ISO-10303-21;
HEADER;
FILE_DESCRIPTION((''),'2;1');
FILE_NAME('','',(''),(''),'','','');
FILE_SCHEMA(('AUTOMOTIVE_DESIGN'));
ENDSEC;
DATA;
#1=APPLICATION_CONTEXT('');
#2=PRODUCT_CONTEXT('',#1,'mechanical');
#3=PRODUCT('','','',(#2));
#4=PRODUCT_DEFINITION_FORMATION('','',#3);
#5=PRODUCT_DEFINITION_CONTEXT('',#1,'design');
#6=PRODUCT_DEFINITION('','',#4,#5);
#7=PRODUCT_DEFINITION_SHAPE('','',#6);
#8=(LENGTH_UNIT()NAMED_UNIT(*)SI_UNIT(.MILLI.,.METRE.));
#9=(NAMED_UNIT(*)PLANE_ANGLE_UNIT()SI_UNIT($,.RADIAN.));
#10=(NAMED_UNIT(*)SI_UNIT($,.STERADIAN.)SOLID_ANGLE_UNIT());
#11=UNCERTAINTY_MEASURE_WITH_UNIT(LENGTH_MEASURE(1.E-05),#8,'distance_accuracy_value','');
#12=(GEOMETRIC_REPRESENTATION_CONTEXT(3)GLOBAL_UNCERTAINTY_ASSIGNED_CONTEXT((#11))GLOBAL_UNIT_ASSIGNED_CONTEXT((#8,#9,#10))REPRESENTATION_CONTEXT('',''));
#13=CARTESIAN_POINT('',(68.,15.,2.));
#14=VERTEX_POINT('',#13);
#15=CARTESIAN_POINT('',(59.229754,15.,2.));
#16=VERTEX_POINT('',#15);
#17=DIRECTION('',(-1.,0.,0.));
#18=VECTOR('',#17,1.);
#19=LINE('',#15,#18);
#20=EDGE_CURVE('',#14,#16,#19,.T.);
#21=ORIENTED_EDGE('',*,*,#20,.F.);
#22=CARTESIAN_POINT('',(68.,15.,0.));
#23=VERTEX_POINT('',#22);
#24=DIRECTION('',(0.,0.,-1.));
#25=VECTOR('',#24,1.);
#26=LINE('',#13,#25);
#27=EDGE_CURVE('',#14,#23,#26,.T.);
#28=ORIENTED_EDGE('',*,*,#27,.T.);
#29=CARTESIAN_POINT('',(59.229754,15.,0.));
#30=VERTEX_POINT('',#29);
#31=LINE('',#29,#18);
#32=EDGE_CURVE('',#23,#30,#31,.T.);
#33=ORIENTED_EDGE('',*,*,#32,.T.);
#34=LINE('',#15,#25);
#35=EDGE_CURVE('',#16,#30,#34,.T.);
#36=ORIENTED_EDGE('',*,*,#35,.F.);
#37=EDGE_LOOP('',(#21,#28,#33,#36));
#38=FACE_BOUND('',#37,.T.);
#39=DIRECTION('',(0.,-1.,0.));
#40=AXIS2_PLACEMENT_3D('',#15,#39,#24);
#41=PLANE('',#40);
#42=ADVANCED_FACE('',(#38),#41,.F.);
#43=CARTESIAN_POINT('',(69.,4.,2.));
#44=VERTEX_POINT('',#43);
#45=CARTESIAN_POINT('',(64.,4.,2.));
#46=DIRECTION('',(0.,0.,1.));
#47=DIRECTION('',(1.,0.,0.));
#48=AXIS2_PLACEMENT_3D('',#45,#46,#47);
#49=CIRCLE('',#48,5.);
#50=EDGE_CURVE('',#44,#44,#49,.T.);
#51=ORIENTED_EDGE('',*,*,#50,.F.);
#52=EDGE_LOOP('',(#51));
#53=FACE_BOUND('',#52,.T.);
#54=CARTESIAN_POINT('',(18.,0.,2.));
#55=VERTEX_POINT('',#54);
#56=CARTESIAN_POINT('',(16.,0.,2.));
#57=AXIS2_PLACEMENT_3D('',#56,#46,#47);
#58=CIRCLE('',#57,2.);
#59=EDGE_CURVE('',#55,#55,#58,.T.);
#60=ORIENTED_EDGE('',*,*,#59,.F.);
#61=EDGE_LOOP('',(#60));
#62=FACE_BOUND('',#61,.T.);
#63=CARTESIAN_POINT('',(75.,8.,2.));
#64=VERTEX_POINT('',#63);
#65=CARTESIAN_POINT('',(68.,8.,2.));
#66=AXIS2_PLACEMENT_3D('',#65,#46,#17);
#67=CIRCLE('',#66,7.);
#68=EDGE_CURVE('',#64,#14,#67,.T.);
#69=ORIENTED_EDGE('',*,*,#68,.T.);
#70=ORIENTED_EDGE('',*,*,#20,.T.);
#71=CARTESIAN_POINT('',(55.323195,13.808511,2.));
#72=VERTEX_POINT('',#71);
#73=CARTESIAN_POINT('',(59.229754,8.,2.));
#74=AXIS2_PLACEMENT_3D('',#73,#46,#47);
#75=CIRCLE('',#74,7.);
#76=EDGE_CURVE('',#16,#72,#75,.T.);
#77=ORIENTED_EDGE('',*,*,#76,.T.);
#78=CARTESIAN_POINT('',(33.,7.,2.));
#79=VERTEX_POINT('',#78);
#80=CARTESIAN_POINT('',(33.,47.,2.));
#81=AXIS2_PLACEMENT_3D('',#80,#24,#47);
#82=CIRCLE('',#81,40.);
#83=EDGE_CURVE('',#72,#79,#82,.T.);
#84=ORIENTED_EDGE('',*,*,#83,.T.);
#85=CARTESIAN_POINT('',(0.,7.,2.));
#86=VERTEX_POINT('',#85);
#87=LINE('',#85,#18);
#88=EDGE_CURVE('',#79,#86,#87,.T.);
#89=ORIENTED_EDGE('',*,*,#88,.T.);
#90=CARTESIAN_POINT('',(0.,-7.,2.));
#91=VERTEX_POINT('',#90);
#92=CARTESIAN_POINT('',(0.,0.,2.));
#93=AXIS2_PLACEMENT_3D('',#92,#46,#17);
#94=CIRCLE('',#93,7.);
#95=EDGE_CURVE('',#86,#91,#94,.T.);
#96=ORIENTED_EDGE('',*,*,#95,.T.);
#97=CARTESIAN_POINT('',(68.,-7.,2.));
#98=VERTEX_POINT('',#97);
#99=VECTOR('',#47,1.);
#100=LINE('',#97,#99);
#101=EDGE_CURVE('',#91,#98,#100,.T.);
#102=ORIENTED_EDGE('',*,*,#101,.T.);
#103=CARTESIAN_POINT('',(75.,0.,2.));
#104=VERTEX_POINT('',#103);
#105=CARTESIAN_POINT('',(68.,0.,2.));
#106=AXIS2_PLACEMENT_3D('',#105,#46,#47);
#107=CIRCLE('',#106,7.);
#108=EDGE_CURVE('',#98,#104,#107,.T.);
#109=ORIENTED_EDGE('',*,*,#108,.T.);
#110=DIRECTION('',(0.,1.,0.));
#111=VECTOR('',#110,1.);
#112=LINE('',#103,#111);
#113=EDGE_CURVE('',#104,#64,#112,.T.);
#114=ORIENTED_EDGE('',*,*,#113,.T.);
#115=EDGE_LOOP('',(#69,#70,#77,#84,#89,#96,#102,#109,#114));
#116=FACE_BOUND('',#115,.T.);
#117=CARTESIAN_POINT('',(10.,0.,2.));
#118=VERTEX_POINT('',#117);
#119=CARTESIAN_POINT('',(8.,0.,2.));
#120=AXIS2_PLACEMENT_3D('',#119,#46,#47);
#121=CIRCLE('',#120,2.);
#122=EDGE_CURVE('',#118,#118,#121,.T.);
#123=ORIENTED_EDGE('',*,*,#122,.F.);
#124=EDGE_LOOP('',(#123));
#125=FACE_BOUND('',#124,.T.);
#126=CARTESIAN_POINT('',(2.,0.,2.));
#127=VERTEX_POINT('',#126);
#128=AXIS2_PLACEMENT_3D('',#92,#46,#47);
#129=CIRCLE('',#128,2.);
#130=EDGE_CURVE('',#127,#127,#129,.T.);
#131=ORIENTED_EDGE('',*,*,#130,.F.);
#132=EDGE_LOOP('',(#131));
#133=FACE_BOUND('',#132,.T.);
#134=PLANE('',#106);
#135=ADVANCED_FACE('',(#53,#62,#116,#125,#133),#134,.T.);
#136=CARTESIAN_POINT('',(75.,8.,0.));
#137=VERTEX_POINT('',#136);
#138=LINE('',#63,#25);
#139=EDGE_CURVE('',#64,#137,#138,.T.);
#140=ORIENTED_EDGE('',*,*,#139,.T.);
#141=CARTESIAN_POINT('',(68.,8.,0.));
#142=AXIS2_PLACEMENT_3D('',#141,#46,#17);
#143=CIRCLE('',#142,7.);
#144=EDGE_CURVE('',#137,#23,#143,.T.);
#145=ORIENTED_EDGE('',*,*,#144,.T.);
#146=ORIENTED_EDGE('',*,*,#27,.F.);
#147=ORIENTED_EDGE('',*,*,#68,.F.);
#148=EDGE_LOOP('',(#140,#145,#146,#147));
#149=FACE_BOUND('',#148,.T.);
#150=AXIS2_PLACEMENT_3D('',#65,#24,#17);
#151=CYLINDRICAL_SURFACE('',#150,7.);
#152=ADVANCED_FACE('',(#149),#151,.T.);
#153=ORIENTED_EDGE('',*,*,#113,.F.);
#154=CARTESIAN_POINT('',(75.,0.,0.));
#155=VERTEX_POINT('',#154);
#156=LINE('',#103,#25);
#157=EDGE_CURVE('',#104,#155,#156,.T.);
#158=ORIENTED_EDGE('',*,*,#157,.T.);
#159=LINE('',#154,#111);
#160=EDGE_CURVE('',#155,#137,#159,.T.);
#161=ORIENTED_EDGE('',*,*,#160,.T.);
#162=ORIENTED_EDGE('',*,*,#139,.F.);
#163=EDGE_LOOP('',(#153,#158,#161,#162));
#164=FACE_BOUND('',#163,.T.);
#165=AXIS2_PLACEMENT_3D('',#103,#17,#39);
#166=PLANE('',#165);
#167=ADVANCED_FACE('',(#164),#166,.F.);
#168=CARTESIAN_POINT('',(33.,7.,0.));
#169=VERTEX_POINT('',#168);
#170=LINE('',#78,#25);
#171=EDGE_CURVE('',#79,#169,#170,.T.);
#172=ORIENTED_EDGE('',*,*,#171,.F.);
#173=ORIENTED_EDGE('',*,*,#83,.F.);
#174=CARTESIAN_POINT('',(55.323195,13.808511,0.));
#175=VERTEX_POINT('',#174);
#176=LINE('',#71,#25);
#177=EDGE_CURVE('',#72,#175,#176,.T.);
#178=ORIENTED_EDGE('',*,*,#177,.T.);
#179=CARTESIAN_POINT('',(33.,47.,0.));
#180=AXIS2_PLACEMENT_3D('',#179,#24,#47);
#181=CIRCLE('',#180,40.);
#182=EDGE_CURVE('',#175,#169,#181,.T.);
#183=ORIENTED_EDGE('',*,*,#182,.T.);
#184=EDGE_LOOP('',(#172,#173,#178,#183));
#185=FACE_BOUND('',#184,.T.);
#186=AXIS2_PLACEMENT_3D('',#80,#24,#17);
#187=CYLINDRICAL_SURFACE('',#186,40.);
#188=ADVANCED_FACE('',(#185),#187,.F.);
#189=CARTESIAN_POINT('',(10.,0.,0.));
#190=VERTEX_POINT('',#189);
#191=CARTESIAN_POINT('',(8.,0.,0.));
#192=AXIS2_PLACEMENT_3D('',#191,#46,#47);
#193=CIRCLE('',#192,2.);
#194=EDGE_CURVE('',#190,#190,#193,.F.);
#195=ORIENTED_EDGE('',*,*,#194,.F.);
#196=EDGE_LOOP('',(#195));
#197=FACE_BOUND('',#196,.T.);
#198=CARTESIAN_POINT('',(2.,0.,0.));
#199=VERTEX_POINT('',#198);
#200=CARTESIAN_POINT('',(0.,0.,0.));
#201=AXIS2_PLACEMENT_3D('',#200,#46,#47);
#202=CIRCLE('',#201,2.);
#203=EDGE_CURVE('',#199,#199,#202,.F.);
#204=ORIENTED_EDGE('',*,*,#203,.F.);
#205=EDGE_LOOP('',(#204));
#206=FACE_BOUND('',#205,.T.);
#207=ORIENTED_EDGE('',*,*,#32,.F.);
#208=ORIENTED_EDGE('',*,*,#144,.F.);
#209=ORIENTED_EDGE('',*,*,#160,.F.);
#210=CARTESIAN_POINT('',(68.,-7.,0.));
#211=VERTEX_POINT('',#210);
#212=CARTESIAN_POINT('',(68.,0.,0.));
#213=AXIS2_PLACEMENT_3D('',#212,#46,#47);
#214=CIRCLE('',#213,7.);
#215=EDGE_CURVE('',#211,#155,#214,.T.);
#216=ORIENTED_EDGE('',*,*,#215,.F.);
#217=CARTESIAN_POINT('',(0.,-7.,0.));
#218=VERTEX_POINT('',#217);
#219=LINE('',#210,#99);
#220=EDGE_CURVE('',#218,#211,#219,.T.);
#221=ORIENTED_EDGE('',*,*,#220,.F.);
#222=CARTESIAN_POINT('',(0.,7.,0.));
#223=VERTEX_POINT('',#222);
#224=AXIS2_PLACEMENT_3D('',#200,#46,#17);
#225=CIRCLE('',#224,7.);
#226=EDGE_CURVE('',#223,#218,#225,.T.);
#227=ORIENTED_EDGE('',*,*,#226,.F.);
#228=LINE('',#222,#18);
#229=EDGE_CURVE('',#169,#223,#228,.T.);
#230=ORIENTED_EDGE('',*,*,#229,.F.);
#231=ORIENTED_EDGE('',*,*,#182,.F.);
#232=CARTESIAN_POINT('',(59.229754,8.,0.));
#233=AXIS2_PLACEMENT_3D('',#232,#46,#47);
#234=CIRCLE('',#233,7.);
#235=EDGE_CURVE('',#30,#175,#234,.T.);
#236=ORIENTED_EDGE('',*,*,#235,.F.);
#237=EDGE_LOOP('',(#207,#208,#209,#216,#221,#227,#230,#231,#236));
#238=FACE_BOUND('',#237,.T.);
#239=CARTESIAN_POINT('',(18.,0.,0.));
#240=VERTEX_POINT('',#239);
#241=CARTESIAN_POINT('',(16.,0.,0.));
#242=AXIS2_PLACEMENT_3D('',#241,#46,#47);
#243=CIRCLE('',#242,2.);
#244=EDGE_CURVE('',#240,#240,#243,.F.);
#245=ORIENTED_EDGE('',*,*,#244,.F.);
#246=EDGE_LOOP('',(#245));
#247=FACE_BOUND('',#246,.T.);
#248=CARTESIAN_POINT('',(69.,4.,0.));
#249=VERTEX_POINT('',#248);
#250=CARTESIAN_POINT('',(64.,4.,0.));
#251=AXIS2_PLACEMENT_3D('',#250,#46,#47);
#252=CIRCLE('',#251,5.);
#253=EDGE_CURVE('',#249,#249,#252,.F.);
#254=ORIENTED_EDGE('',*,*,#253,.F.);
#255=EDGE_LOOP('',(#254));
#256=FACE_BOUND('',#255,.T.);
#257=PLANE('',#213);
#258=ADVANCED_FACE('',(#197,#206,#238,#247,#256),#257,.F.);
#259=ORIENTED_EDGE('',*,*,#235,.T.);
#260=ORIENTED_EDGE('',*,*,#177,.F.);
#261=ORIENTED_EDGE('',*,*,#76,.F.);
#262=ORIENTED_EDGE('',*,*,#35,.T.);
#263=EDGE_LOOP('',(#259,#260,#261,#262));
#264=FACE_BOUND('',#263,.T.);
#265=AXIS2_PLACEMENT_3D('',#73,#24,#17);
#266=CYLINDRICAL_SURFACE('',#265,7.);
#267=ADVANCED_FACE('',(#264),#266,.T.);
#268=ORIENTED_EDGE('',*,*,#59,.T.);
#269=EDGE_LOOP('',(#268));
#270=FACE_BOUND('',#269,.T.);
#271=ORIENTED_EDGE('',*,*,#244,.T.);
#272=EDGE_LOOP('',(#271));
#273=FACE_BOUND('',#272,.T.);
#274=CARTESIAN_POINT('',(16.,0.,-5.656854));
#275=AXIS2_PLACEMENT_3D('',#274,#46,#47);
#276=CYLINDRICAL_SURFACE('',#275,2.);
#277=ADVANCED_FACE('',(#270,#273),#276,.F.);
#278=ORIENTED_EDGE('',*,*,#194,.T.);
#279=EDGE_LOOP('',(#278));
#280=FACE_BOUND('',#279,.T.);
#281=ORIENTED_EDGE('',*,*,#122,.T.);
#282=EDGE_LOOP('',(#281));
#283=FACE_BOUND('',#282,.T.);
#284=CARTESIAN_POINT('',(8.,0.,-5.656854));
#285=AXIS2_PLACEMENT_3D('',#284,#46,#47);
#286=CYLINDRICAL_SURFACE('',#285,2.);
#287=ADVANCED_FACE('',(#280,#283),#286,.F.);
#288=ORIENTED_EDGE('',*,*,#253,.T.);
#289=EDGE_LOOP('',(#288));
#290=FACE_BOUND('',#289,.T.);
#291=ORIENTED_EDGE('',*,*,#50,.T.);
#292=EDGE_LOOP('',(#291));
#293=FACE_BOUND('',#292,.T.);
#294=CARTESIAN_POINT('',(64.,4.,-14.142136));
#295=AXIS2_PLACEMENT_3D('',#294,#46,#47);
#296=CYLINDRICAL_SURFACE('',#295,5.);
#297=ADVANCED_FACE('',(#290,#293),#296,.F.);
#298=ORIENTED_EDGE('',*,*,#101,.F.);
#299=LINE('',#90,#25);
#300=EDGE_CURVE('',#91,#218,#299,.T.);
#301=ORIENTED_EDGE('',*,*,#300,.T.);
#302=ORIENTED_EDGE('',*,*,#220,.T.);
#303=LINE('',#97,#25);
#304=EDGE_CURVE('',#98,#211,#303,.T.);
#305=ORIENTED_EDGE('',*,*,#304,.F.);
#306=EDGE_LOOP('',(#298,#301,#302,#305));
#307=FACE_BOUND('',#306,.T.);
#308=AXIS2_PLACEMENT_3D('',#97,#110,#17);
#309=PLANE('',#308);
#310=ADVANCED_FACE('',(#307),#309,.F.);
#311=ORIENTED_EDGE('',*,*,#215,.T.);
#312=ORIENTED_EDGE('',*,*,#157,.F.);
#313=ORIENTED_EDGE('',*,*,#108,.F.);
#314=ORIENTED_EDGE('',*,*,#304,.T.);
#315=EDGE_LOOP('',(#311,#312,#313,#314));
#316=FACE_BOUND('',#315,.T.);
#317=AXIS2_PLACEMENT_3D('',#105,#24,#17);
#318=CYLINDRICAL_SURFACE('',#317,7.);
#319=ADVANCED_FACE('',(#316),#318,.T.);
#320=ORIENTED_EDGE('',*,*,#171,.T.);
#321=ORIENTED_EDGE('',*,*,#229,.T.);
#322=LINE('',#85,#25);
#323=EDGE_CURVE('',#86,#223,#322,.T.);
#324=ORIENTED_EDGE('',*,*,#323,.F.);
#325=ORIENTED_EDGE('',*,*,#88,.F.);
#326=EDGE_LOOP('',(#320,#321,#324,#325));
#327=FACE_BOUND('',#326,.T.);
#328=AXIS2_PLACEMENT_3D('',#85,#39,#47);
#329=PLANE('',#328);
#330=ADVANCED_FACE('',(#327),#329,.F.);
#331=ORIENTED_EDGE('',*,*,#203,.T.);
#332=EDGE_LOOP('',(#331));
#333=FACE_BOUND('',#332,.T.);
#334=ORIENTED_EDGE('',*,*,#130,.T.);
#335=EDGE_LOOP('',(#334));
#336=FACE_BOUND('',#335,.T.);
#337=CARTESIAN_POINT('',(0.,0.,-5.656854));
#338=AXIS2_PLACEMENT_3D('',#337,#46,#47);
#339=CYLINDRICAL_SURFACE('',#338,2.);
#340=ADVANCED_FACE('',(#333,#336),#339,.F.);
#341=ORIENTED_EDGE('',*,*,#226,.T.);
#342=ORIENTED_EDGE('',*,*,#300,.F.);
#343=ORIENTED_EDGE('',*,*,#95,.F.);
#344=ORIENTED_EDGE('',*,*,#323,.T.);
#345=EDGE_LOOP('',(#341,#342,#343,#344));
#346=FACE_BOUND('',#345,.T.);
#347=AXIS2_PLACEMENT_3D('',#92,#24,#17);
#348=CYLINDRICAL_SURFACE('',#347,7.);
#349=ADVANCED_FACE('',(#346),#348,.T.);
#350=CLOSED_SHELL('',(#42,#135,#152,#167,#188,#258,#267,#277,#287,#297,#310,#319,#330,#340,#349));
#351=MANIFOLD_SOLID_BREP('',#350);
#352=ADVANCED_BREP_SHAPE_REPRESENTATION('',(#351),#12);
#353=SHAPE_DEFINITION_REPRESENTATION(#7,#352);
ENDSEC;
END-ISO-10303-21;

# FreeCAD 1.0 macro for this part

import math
import FreeCAD as App
import Part
import Sketcher
Q = App.Units.Quantity

doc = App.newDocument("Part")
body = doc.addObject("PartDesign::Body", "Body")

sketch1 = body.newObject("Sketcher::SketchObject", "Sketch")
sketch1.AttachmentSupport = (doc.getObject("XY_Plane"), [""])
sketch1.MapMode = "FlatFace"
sketch1.addGeometry(Part.LineSegment(App.Vector(33, 7, 0), App.Vector(0, 7, 0)), False)
sketch1.addGeometry(Part.ArcOfCircle(Part.Circle(App.Vector(0, 0, 0), App.Vector(0, 0, 1), 7), math.radians(90), math.radians(270)), False)
sketch1.addGeometry(Part.LineSegment(App.Vector(0, -7, 0), App.Vector(68, -7, 0)), False)
sketch1.addGeometry(Part.ArcOfCircle(Part.Circle(App.Vector(68, 0, 0), App.Vector(0, 0, 1), 7), math.radians(-90), math.radians(0)), False)
sketch1.addGeometry(Part.LineSegment(App.Vector(75, 0, 0), App.Vector(75, 8, 0)), False)
sketch1.addGeometry(Part.ArcOfCircle(Part.Circle(App.Vector(68, 8, 0), App.Vector(0, 0, 1), 7), math.radians(0), math.radians(90)), False)
sketch1.addGeometry(Part.LineSegment(App.Vector(68, 15, 0), App.Vector(59.2, 15, 0)), False)
sketch1.addGeometry(Part.ArcOfCircle(Part.Circle(App.Vector(59.2, 8, 0), App.Vector(0, 0, 1), 7), math.radians(90), math.radians(124)), False)
sketch1.addGeometry(Part.ArcOfCircle(Part.Circle(App.Vector(33, 47, 0), App.Vector(0, 0, 1), 40), math.radians(-90), math.radians(-56)), False)
sketch1.addConstraint(Sketcher.Constraint("Tangent", 0, 2, 1, 1))
sketch1.addConstraint(Sketcher.Constraint("Tangent", 1, 2, 2, 1))
sketch1.addConstraint(Sketcher.Constraint("Tangent", 2, 2, 3, 1))
sketch1.addConstraint(Sketcher.Constraint("Tangent", 3, 2, 4, 1))
sketch1.addConstraint(Sketcher.Constraint("Tangent", 4, 2, 5, 1))
sketch1.addConstraint(Sketcher.Constraint("Tangent", 5, 2, 6, 1))
sketch1.addConstraint(Sketcher.Constraint("Tangent", 6, 2, 7, 1))
sketch1.addConstraint(Sketcher.Constraint("Tangent", 7, 2, 8, 2))
sketch1.addConstraint(Sketcher.Constraint("Tangent", 8, 1, 0, 1))
sketch1.addConstraint(Sketcher.Constraint("Horizontal", 0))
sketch1.addConstraint(Sketcher.Constraint("Horizontal", 2))
sketch1.addConstraint(Sketcher.Constraint("Vertical", 4))
sketch1.addConstraint(Sketcher.Constraint("Horizontal", 6))
sketch1.addConstraint(Sketcher.Constraint("Coincident", 1, 3, -1, 1))
sketch1.addConstraint(Sketcher.Constraint("Equal", 1, 3))
sketch1.addConstraint(Sketcher.Constraint("Equal", 3, 5))
sketch1.addConstraint(Sketcher.Constraint("Equal", 5, 7))
sketch1.addConstraint(Sketcher.Constraint("Radius", 1, Q("7 mm")))
sketch1.addConstraint(Sketcher.Constraint("Radius", 8, Q("40 mm")))
sketch1.addConstraint(Sketcher.Constraint("DistanceX", 0, 2, 0, 1, Q("33 mm")))
sketch1.addConstraint(Sketcher.Constraint("DistanceX", 2, 1, 2, 2, Q("68 mm")))
sketch1.addConstraint(Sketcher.Constraint("DistanceY", 4, 1, 4, 2, Q("8 mm")))
pad1 = body.newObject("PartDesign::Pad", "Pad")
pad1.Profile = sketch1
pad1.Length = 2

sketch2 = body.newObject("Sketcher::SketchObject", "Sketch001")
sketch2.AttachmentSupport = (doc.getObject("XY_Plane"), [""])
sketch2.MapMode = "FlatFace"
sketch2.AttachmentOffset = App.Placement(App.Vector(0, 0, 2), App.Rotation())
sketch2.addGeometry(Part.Circle(App.Vector(0, 0, 0), App.Vector(0, 0, 1), 2), False)
sketch2.addGeometry(Part.Circle(App.Vector(8, 0, 0), App.Vector(0, 0, 1), 2), False)
sketch2.addGeometry(Part.Circle(App.Vector(16, 0, 0), App.Vector(0, 0, 1), 2), False)
sketch2.addConstraint(Sketcher.Constraint("Coincident", 0, 3, -1, 1))
sketch2.addConstraint(Sketcher.Constraint("Equal", 0, 1))
sketch2.addConstraint(Sketcher.Constraint("Equal", 1, 2))
sketch2.addConstraint(Sketcher.Constraint("PointOnObject", 1, 3, -1))
sketch2.addConstraint(Sketcher.Constraint("PointOnObject", 2, 3, -1))
sketch2.addConstraint(Sketcher.Constraint("Diameter", 0, Q("4 mm")))
sketch2.addConstraint(Sketcher.Constraint("DistanceX", -1, 1, 1, 3, Q("8 mm")))
sketch2.addConstraint(Sketcher.Constraint("DistanceX", -1, 1, 2, 3, Q("16 mm")))
pocket1 = body.newObject("PartDesign::Pocket", "Pocket")
pocket1.Profile = sketch2
pocket1.Length = 2

sketch3 = body.newObject("Sketcher::SketchObject", "Sketch002")
sketch3.AttachmentSupport = (doc.getObject("XY_Plane"), [""])
sketch3.MapMode = "FlatFace"
sketch3.AttachmentOffset = App.Placement(App.Vector(0, 0, 2), App.Rotation())
sketch3.addGeometry(Part.Circle(App.Vector(64, 4, 0), App.Vector(0, 0, 1), 5), False)
sketch3.addConstraint(Sketcher.Constraint("Diameter", 0, Q("10 mm")))
sketch3.addConstraint(Sketcher.Constraint("DistanceX", -1, 1, 0, 3, Q("64 mm")))
sketch3.addConstraint(Sketcher.Constraint("DistanceY", -1, 1, 0, 3, Q("4 mm")))
pocket2 = body.newObject("PartDesign::Pocket", "Pocket001")
pocket2.Profile = sketch3
pocket2.Length = 2

doc.recompute()
